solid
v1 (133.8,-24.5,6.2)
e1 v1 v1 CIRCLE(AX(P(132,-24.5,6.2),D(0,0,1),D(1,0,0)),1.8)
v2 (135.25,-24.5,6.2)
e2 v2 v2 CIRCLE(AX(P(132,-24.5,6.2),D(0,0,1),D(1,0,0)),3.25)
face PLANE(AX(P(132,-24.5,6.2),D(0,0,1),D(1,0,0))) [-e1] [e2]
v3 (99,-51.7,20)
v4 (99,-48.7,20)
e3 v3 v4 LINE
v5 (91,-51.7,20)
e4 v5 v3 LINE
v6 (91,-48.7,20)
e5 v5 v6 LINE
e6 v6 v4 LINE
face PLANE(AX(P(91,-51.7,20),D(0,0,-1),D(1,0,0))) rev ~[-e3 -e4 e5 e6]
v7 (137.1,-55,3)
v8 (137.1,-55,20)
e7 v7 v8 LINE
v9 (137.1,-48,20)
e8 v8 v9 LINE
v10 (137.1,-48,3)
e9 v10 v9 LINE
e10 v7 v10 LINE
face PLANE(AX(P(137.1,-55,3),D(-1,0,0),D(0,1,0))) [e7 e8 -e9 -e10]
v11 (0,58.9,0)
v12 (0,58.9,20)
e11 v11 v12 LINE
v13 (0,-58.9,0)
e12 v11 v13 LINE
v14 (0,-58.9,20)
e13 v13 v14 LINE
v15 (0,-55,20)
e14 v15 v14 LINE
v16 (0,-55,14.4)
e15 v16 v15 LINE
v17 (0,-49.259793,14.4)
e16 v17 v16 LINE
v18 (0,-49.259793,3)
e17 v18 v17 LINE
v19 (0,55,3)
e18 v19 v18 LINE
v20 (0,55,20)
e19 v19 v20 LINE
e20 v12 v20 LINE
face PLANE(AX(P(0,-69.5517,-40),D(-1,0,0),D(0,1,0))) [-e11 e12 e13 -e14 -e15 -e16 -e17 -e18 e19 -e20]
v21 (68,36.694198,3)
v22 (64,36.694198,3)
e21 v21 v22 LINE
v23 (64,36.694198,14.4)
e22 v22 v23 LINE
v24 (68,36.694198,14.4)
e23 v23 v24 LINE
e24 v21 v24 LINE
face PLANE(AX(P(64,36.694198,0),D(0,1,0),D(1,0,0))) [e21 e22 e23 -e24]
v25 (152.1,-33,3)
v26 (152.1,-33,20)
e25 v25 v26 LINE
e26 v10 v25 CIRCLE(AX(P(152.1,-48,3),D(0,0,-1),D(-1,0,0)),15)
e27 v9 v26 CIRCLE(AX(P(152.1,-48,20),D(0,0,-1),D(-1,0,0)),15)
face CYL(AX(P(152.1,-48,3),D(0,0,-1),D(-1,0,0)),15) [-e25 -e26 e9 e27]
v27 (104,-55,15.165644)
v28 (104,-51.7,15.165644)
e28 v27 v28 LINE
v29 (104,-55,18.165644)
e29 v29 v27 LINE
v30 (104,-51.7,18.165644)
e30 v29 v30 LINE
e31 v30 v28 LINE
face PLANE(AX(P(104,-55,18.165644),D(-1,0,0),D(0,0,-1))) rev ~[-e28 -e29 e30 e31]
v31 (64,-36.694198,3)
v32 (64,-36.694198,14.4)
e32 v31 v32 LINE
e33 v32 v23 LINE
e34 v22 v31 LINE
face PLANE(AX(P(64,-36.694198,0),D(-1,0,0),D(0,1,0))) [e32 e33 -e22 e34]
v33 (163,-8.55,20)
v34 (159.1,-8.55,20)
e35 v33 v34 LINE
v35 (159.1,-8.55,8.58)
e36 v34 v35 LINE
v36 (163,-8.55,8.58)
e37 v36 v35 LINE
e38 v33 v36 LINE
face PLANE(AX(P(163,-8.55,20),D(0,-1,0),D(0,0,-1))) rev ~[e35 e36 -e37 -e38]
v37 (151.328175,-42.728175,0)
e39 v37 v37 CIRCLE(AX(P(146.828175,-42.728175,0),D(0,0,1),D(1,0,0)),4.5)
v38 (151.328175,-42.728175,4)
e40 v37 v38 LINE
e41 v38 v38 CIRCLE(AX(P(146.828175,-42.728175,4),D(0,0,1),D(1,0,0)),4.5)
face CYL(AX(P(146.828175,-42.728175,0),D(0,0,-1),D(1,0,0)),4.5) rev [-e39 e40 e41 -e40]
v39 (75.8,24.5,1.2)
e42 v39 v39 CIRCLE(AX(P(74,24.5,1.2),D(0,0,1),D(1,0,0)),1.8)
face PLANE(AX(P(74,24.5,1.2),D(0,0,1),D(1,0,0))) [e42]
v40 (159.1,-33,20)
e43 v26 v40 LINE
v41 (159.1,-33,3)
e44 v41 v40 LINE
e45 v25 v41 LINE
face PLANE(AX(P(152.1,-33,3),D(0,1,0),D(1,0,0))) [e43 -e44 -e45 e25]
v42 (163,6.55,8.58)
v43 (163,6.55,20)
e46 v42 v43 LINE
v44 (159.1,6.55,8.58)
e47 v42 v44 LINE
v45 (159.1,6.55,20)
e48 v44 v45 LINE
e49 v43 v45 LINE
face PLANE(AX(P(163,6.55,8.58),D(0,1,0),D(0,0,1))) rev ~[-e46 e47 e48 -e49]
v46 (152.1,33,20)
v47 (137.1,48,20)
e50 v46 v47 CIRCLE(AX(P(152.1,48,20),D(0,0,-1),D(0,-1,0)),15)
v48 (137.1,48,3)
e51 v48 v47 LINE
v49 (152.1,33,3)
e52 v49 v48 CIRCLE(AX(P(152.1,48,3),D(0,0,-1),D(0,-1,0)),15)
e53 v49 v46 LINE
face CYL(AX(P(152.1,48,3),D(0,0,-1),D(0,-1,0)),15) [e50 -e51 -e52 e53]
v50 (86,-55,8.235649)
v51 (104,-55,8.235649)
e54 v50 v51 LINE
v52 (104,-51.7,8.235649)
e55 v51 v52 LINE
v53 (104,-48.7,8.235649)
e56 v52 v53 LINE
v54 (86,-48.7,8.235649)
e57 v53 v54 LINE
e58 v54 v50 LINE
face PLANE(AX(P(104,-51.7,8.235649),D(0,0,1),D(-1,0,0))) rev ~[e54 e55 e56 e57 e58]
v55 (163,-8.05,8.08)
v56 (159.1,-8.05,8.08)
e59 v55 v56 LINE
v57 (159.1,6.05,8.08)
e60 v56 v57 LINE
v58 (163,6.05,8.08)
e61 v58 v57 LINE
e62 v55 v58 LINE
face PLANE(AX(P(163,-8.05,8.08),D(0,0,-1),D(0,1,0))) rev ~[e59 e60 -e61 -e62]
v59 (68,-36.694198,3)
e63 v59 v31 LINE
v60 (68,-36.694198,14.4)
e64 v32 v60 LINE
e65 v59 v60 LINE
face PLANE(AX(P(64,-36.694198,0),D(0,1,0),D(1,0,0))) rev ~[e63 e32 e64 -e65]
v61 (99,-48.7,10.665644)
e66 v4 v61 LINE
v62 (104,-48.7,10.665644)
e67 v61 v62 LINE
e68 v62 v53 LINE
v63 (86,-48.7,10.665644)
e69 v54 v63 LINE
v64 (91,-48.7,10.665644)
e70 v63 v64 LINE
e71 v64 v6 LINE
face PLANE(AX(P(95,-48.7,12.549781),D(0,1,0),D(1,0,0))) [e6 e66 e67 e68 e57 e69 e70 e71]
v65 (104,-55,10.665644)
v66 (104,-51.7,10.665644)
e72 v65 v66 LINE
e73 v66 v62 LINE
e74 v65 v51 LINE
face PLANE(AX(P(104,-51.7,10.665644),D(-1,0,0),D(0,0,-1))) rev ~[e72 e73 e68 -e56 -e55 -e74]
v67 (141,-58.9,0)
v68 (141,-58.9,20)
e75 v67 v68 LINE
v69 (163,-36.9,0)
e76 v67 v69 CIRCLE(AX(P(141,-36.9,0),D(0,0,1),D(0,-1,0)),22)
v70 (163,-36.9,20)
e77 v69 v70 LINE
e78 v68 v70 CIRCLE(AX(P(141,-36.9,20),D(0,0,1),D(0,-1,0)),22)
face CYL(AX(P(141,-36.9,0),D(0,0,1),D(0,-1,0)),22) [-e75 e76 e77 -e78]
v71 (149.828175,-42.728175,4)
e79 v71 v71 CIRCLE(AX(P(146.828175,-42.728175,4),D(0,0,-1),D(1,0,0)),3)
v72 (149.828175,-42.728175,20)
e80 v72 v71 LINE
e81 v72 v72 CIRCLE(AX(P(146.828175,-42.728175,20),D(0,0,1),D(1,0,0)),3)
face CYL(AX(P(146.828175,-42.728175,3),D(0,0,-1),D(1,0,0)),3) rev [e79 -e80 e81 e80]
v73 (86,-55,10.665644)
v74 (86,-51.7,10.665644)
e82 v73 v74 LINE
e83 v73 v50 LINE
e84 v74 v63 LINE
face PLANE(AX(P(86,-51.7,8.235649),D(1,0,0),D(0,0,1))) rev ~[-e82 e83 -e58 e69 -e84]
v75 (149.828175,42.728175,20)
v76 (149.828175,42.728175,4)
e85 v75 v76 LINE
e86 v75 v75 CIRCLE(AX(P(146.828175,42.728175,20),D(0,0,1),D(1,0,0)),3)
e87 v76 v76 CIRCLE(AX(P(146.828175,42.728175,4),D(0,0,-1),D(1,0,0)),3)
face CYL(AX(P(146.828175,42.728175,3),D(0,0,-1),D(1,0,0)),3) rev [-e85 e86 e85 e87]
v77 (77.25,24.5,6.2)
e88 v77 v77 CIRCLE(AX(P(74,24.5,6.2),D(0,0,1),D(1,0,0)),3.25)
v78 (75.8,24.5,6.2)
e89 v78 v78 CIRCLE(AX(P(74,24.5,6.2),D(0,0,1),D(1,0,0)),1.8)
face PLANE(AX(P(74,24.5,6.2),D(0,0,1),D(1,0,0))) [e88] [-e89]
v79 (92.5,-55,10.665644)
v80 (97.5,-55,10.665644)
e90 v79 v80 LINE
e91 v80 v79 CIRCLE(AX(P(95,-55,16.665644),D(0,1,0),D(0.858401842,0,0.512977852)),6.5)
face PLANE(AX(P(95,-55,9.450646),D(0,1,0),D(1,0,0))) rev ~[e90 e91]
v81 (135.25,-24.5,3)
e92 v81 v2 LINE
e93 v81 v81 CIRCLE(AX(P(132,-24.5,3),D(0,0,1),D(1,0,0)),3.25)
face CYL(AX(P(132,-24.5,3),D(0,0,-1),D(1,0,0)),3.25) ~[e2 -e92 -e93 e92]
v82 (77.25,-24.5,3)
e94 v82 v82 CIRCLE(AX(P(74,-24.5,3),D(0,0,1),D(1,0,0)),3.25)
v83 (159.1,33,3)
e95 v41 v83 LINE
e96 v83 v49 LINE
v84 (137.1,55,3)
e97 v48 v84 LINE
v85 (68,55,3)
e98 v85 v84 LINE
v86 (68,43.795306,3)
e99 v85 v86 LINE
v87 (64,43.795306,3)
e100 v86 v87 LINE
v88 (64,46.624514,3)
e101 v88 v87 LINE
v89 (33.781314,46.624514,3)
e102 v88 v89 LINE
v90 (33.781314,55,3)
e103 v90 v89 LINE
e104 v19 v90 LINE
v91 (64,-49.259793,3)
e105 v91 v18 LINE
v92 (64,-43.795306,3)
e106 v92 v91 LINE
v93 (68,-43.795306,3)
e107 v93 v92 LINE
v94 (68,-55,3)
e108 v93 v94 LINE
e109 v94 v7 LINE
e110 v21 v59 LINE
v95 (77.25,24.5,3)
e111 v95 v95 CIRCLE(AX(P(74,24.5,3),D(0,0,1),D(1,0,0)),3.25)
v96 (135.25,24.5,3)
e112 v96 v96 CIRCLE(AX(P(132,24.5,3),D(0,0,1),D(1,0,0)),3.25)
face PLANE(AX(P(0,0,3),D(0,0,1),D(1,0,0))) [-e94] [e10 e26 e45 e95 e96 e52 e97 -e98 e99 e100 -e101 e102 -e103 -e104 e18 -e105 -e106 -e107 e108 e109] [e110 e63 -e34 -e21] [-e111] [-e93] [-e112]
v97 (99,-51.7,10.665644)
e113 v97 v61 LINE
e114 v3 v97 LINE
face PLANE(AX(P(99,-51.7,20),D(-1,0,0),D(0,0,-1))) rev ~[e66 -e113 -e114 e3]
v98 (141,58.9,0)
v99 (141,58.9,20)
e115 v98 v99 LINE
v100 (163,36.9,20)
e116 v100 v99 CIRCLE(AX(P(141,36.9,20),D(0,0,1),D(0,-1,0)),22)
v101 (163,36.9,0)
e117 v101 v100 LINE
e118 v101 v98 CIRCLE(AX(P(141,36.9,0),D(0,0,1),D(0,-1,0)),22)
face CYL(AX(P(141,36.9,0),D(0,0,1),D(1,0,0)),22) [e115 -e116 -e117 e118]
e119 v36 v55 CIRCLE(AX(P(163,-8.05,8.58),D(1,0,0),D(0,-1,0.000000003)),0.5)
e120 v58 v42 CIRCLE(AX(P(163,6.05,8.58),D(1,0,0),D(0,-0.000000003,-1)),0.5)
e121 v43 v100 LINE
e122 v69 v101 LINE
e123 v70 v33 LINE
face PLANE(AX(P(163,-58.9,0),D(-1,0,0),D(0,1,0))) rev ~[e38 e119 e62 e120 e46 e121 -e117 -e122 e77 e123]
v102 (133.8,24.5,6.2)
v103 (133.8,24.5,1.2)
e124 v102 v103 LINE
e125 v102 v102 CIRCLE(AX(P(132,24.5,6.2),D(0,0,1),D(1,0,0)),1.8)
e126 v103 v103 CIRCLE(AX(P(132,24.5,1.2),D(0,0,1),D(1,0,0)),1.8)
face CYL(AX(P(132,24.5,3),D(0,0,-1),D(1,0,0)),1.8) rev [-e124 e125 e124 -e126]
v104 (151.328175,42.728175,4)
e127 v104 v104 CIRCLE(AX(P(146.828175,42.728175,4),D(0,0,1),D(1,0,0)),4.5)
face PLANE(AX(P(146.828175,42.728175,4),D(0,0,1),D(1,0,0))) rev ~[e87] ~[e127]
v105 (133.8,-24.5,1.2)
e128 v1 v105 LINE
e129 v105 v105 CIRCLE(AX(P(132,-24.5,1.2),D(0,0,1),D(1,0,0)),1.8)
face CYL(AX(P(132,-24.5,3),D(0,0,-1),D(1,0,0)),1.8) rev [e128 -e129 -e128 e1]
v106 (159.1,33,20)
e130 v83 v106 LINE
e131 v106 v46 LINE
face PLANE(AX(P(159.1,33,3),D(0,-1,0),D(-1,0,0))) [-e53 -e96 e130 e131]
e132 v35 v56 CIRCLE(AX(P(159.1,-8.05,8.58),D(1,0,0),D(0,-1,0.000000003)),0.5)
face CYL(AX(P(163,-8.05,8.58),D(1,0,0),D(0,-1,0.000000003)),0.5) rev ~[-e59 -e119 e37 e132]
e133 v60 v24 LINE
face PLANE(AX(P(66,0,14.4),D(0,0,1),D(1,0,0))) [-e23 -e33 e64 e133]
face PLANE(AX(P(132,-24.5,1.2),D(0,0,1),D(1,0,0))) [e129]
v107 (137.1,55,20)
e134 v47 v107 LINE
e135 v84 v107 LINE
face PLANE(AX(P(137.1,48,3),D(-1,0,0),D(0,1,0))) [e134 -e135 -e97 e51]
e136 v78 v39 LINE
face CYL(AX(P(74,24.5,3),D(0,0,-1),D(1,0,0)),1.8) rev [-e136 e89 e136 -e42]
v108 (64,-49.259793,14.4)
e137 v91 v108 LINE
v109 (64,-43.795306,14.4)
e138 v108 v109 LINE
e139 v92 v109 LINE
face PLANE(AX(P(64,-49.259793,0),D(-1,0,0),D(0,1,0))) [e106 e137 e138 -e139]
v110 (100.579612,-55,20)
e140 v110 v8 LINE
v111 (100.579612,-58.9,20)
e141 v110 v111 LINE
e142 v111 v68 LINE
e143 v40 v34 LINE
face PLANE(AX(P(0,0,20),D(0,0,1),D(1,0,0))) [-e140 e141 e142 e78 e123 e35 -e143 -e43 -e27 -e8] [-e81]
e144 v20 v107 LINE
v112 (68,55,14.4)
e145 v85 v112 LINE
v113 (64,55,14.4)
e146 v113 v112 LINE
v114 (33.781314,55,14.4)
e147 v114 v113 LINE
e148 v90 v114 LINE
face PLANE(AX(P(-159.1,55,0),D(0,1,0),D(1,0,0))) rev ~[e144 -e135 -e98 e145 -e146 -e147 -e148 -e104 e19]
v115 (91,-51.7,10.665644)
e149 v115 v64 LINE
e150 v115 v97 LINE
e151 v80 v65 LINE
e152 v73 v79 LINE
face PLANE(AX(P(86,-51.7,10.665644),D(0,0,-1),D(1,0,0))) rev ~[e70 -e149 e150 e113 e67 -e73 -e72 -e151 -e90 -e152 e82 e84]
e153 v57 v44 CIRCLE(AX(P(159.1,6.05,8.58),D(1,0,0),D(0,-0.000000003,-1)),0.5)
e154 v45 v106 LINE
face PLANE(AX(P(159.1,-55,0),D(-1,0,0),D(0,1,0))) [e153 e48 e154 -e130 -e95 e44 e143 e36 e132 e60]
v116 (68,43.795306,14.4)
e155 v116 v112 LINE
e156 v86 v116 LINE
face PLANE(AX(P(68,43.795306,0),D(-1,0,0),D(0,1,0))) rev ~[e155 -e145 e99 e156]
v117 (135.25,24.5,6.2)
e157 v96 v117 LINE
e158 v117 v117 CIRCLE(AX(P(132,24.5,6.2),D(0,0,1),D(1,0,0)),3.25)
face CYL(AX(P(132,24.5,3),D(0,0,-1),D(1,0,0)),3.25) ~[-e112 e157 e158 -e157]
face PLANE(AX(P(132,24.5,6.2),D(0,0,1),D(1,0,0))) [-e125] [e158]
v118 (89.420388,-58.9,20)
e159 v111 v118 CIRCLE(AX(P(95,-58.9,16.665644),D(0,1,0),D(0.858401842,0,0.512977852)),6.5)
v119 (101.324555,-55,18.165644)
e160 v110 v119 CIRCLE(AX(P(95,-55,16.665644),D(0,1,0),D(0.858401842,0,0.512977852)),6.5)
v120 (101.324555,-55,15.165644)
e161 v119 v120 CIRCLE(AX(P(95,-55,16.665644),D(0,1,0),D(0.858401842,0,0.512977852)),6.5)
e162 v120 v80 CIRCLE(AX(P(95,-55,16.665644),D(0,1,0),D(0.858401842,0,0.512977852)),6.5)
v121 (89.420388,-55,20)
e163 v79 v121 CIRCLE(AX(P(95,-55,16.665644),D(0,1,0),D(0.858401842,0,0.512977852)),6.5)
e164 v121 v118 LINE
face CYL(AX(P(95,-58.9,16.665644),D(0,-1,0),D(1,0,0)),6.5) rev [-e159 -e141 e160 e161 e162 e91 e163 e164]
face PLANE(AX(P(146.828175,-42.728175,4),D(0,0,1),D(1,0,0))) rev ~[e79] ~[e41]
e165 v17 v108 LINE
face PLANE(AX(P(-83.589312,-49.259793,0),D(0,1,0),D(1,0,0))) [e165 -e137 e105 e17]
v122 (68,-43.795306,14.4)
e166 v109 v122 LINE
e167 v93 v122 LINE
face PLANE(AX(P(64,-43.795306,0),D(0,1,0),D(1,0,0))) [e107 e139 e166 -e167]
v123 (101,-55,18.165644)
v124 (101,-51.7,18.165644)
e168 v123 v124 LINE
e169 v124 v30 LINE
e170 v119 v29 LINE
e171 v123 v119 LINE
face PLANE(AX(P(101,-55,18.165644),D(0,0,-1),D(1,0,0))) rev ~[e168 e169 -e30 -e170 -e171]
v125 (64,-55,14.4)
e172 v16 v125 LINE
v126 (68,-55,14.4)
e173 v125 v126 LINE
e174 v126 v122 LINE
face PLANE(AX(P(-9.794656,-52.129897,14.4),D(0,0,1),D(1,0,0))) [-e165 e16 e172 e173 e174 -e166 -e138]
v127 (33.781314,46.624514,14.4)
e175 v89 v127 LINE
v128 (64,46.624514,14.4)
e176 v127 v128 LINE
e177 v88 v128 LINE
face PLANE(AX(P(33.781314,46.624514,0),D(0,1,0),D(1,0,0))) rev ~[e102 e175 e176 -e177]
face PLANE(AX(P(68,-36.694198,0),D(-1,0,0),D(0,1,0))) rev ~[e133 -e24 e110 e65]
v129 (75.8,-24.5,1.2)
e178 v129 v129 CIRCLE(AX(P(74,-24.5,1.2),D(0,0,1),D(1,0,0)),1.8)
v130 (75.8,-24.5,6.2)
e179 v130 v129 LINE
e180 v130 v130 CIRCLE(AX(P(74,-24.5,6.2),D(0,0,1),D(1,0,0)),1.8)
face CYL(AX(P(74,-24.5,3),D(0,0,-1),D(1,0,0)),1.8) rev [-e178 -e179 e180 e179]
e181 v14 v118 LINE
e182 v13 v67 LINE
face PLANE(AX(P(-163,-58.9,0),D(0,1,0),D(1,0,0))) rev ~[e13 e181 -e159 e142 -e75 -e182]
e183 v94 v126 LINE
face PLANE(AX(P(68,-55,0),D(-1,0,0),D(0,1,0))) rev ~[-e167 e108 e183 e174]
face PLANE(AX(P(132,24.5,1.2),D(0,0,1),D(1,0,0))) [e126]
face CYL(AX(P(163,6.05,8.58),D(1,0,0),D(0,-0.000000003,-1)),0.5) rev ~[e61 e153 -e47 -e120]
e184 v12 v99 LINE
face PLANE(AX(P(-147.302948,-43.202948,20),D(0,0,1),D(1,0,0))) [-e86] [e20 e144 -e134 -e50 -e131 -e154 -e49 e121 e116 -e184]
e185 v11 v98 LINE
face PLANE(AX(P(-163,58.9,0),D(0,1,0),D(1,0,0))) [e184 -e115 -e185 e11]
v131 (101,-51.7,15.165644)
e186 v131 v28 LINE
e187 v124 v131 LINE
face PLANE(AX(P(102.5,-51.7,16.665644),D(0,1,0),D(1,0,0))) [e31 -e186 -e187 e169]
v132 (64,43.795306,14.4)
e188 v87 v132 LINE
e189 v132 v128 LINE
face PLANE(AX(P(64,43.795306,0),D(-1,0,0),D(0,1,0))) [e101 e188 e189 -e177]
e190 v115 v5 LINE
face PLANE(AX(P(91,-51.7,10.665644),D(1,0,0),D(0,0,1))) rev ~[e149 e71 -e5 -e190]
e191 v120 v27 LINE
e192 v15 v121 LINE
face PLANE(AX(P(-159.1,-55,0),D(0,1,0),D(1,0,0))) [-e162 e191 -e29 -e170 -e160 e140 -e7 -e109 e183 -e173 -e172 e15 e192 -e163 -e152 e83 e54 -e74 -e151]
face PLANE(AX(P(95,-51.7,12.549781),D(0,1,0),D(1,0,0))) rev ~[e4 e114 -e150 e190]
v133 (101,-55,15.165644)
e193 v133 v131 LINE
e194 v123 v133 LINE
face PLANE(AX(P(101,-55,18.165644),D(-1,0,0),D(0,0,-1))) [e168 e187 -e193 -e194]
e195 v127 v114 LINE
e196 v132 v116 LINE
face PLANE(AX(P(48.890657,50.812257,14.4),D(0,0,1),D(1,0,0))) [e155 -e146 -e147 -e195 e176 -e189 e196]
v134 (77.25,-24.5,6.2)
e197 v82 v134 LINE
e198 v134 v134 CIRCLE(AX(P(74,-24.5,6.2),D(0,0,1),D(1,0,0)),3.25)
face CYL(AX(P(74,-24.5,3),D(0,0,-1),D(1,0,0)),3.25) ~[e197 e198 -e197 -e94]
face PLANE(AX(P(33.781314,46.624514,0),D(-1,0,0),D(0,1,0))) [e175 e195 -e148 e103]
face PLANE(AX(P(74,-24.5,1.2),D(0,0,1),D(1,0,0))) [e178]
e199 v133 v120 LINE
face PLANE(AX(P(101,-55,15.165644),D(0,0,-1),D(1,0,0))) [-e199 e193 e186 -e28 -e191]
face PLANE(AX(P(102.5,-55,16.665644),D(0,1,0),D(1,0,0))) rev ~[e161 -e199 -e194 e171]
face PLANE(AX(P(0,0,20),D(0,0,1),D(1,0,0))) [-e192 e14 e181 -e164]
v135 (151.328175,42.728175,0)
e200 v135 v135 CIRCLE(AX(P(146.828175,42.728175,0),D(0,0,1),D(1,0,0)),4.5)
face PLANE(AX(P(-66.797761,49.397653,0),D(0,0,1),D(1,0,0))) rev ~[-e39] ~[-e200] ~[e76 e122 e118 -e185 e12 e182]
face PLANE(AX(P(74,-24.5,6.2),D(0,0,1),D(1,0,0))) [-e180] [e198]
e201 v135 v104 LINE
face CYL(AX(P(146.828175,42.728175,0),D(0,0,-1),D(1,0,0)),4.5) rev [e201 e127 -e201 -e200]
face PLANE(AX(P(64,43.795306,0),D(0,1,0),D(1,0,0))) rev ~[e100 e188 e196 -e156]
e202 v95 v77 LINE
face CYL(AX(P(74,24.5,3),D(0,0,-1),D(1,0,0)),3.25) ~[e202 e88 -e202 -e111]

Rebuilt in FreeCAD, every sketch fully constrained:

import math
import FreeCAD as App
import Part
import Sketcher

V = App.Vector


def edges_at(feature, points):
    """Names of the edges that pass closest to the given points."""
    edges = feature.Shape.Edges
    near = lambda p: min(range(len(edges)), key=lambda i: edges[i].distToShape(Part.Vertex(*p))[0])
    return sorted({f"Edge{near(p) + 1}" for p in points})


def add_polygon(sketch, points):
    """Adds a closed chain of lines whose ends are joined by coincident constraints."""
    first, n = sketch.GeometryCount, len(points)
    for a, b in zip(points, points[1:] + points[:1]):
        sketch.addGeometry(Part.LineSegment(App.Vector(*a, 0), App.Vector(*b, 0)), False)
    for i in range(n):
        sketch.addConstraint(Sketcher.Constraint("Coincident", first + i, 2, first + (i + 1) % n, 1))

doc = App.newDocument("Part")
body = doc.addObject("PartDesign::Body", "Body")

sketch1 = body.newObject("Sketcher::SketchObject", "Sketch")
sketch1.AttachmentSupport = (doc.getObject("XY_Plane"), [""])
sketch1.MapMode = "FlatFace"
add_polygon(sketch1, [(-163, 59), (-163, -59), (163, -59), (163, 59)])
add_polygon(sketch1, [(159, -55), (-159, -55), (-159, 55), (159, 55)])
sketch1.addConstraint([
    Sketcher.Constraint("Vertical", 0),
    Sketcher.Constraint("Horizontal", 1),
    Sketcher.Constraint("Vertical", 2),
    Sketcher.Constraint("Horizontal", 3),
    Sketcher.Constraint("Horizontal", 4),
    Sketcher.Constraint("Vertical", 5),
    Sketcher.Constraint("Horizontal", 6),
    Sketcher.Constraint("Vertical", 7),
    Sketcher.Constraint("Symmetric", 0, 2, 2, 2, -1, 1),
    Sketcher.Constraint("Symmetric", 4, 2, 6, 2, -1, 1),
    Sketcher.Constraint("DistanceX", 1, 1, 1, 2, 326.0),
    Sketcher.Constraint("DistanceY", 5, 1, 5, 2, 110.0),
    Sketcher.Constraint("DistanceX", 4, 2, 4, 1, 318.2),
    Sketcher.Constraint("DistanceY", 0, 2, 0, 1, 117.8),
])
pad1 = body.newObject("PartDesign::Pad", "Pad")
pad1.Profile = sketch1
pad1.Length = 20

sketch2 = body.newObject("Sketcher::SketchObject", "Sketch001")
sketch2.AttachmentSupport = (doc.getObject("XY_Plane"), [""])
sketch2.MapMode = "FlatFace"
add_polygon(sketch2, [(-159, 55), (-159, -55), (159, -55), (159, 55)])
sketch2.addConstraint([
    Sketcher.Constraint("Vertical", 0),
    Sketcher.Constraint("Horizontal", 1),
    Sketcher.Constraint("Vertical", 2),
    Sketcher.Constraint("Horizontal", 3),
    Sketcher.Constraint("Symmetric", 0, 2, 2, 2, -1, 1),
    Sketcher.Constraint("DistanceY", 0, 2, 0, 1, 110.0),
    Sketcher.Constraint("DistanceX", 1, 1, 1, 2, 318.2),
])
pad2 = body.newObject("PartDesign::Pad", "Pad001")
pad2.Profile = sketch2
pad2.Length = 3

sketch3 = body.newObject("Sketcher::SketchObject", "Sketch002")
sketch3.AttachmentSupport = (doc.getObject("XY_Plane"), [""])
sketch3.MapMode = "FlatFace"
sketch3.AttachmentOffset = App.Placement(V(0, 0, 3), App.Rotation())
sketch3.addGeometry([
    Part.Circle(V(132, -24.5, 0), V(0, 0, 1), 3.2),
    Part.Circle(V(132, -24.5, 0), V(0, 0, 1), 1.8),
    Part.Circle(V(74, -24.5, 0), V(0, 0, 1), 3.2),
    Part.Circle(V(74, -24.5, 0), V(0, 0, 1), 1.8),
    Part.Circle(V(74, 24.5, 0), V(0, 0, 1), 3.2),
    Part.Circle(V(74, 24.5, 0), V(0, 0, 1), 1.8),
    Part.Circle(V(132, 24.5, 0), V(0, 0, 1), 3.2),
    Part.Circle(V(132, 24.5, 0), V(0, 0, 1), 1.8),
], False)
sketch3.addConstraint([
    Sketcher.Constraint("Coincident", 1, 3, 0, 3),
    Sketcher.Constraint("Coincident", 3, 3, 2, 3),
    Sketcher.Constraint("Coincident", 5, 3, 4, 3),
    Sketcher.Constraint("Coincident", 7, 3, 6, 3),
    Sketcher.Constraint("Equal", 0, 2),
    Sketcher.Constraint("Equal", 1, 3),
    Sketcher.Constraint("Equal", 2, 4),
    Sketcher.Constraint("Equal", 3, 5),
    Sketcher.Constraint("Equal", 4, 6),
    Sketcher.Constraint("Equal", 5, 7),
    Sketcher.Constraint("Symmetric", 2, 3, 4, 3, -1),
    Sketcher.Constraint("Symmetric", 0, 3, 6, 3, -1),
    Sketcher.Constraint("Horizontal", 1, 3, 2, 3),
    Sketcher.Constraint("Diameter", 0, 6.5),
    Sketcher.Constraint("Diameter", 1, 3.6),
    Sketcher.Constraint("DistanceX", -1, 1, 0, 3, 132.0),
    Sketcher.Constraint("DistanceX", -1, 1, 2, 3, 74.0),
    Sketcher.Constraint("DistanceY", 2, 3, 4, 3, 49.0),
])
pad3 = body.newObject("PartDesign::Pad", "Pad002")
pad3.Profile = sketch3
pad3.Length = 3.2
doc.recompute()

fillet = body.newObject("PartDesign::Fillet", "Fillet")
fillet.Base = (pad3, edges_at(pad3, [
    (163, 58.9, 10),
    (163, -58.9, 10),
    (-163, -58.9, 10),
    (-163, 58.9, 10),
    (159.1, 55, 11.5),
    (-159.1, 55, 11.5),
    (-159.1, -55, 11.5),
    (159.1, -55, 11.5),
]))
fillet.Radius = 22

sketch4 = body.newObject("Sketcher::SketchObject", "Sketch003")
sketch4.AttachmentSupport = (doc.getObject("YZ_Plane"), [""])
sketch4.MapMode = "FlatFace"
sketch4.AttachmentOffset = App.Placement(V(0, 0, 163), App.Rotation())
sketch4.addGeometry([
    Part.LineSegment(V(-8.55, 20, 0), V(-8.55, 8.58, 0)),
    Part.ArcOfCircle(Part.Circle(V(-8.05, 8.58, 0), V(0, 0, 1), 0.5), math.radians(180), math.radians(270)),
    Part.LineSegment(V(-8.05, 8.08, 0), V(6.05, 8.08, 0)),
    Part.ArcOfCircle(Part.Circle(V(6.05, 8.58, 0), V(0, 0, 1), 0.5), math.radians(-90), math.radians(0)),
    Part.LineSegment(V(6.55, 8.58, 0), V(6.55, 20, 0)),
    Part.LineSegment(V(6.55, 20, 0), V(-8.55, 20, 0)),
], False)
sketch4.addConstraint([
    Sketcher.Constraint("Tangent", 0, 2, 1, 1),
    Sketcher.Constraint("Tangent", 1, 2, 2, 1),
    Sketcher.Constraint("Tangent", 2, 2, 3, 1),
    Sketcher.Constraint("Tangent", 3, 2, 4, 1),
    Sketcher.Constraint("Coincident", 4, 2, 5, 1),
    Sketcher.Constraint("Coincident", 5, 2, 0, 1),
    Sketcher.Constraint("Vertical", 0),
    Sketcher.Constraint("Horizontal", 2),
    Sketcher.Constraint("Vertical", 4),
    Sketcher.Constraint("Horizontal", 5),
    Sketcher.Constraint("Equal", 1, 3),
    Sketcher.Constraint("Radius", 1, 0.5),
    Sketcher.Constraint("DistanceX", 2, 1, 2, 2, 14.1),
    Sketcher.Constraint("DistanceY", -1, 1, 4, 2, 20.0),
    Sketcher.Constraint("DistanceY", 0, 2, 0, 1, 11.42),
    Sketcher.Constraint("DistanceX", 1, 3, -1, 1, 8.05),
])
pocket1 = body.newObject("PartDesign::Pocket", "Pocket")
pocket1.Profile = sketch4
pocket1.Length = 3.9

sketch5 = body.newObject("Sketcher::SketchObject", "Sketch004")
sketch5.AttachmentSupport = (doc.getObject("XY_Plane"), [""])
sketch5.MapMode = "FlatFace"
sketch5.AttachmentOffset = App.Placement(V(0, 0, 1.2), App.Rotation())
sketch5.addGeometry([
    Part.Circle(V(132, -24.5, 0), V(0, 0, 1), 1.8),
    Part.Circle(V(132, 24.5, 0), V(0, 0, 1), 1.8),
    Part.Circle(V(74, 24.5, 0), V(0, 0, 1), 1.8),
    Part.Circle(V(74, -24.5, 0), V(0, 0, 1), 1.8),
], False)
sketch5.addConstraint([
    Sketcher.Constraint("Equal", 0, 1),
    Sketcher.Constraint("Equal", 1, 2),
    Sketcher.Constraint("Equal", 2, 3),
    Sketcher.Constraint("Symmetric", 0, 3, 1, 3, -1),
    Sketcher.Constraint("Symmetric", 2, 3, 3, 3, -1),
    Sketcher.Constraint("Horizontal", 1, 3, 2, 3),
    Sketcher.Constraint("Diameter", 0, 3.6),
    Sketcher.Constraint("DistanceX", -1, 1, 0, 3, 132.0),
    Sketcher.Constraint("DistanceX", -1, 1, 2, 3, 74.0),
    Sketcher.Constraint("DistanceY", 0, 3, 1, 3, 49.0),
])
pocket2 = body.newObject("PartDesign::Pocket", "Pocket001")
pocket2.Profile = sketch5
pocket2.Length = 1.8
pocket2.Reversed = True

sketch6 = body.newObject("Sketcher::SketchObject", "Sketch005")
sketch6.AttachmentSupport = (doc.getObject("XY_Plane"), [""])
sketch6.MapMode = "FlatFace"
add_polygon(sketch6, [(-99, 43.8), (-34.6, 43.8), (-34.6, 55), (-103, 55), (-103, -43.8), (-99, -43.8)])
add_polygon(sketch6, [(33.8, 55), (33.8, 46.6), (64, 46.6), (64, 43.8), (68, 43.8), (68, 55), (64, 55)])
add_polygon(sketch6, [(64, 36.7), (64, -36.7), (68, -36.7), (68, 36.7)])
add_polygon(sketch6, [(-83.6, -49.3), (-83.6, -55), (64, -55), (68, -55), (68, -43.8), (64, -43.8), (64, -49.3)])
sketch6.addConstraint([
    Sketcher.Constraint("Horizontal", 0),
    Sketcher.Constraint("Vertical", 1),
    Sketcher.Constraint("Horizontal", 2),
    Sketcher.Constraint("Vertical", 3),
    Sketcher.Constraint("Horizontal", 4),
    Sketcher.Constraint("Vertical", 5),
    Sketcher.Constraint("Vertical", 6),
    Sketcher.Constraint("Horizontal", 7),
    Sketcher.Constraint("Vertical", 8),
    Sketcher.Constraint("Horizontal", 9),
    Sketcher.Constraint("Vertical", 10),
    Sketcher.Constraint("Horizontal", 11),
    Sketcher.Constraint("Horizontal", 12),
    Sketcher.Constraint("Vertical", 13),
    Sketcher.Constraint("Horizontal", 14),
    Sketcher.Constraint("Vertical", 15),
    Sketcher.Constraint("Horizontal", 16),
    Sketcher.Constraint("Vertical", 17),
    Sketcher.Constraint("Horizontal", 18),
    Sketcher.Constraint("Horizontal", 19),
    Sketcher.Constraint("Vertical", 20),
    Sketcher.Constraint("Horizontal", 21),
    Sketcher.Constraint("Vertical", 22),
    Sketcher.Constraint("Horizontal", 23),
    Sketcher.Constraint("Symmetric", 11, 2, 18, 2, -1),
    Sketcher.Constraint("Symmetric", 9, 2, 20, 2, -1),
    Sketcher.Constraint("Horizontal", 5, 2, 8, 2),
    Sketcher.Constraint("Horizontal", 2, 2, 10, 2),
    Sketcher.Constraint("Horizontal", 4, 2, 20, 2),
    Sketcher.Constraint("Vertical", 8, 2, 11, 2),
    Sketcher.Constraint("Vertical", 11, 2, 13, 2),
    Sketcher.Constraint("Vertical", 10, 2, 14, 2),
    Sketcher.Constraint("Vertical", 18, 2, 21, 2),
    Sketcher.Constraint("Equal", 4, 9),
    Sketcher.Constraint("DistanceX", 4, 1, 4, 2, 4.0),
    Sketcher.Constraint("DistanceY", -1, 1, 1, 2, 55.0),
    Sketcher.Constraint("DistanceX", 2, 2, -1, 1, 103.0),
    Sketcher.Constraint("DistanceX", -1, 1, 7, 2, 64.0),
    Sketcher.Constraint("DistanceX", 0, 1, 0, 2, 64.404479),
    Sketcher.Constraint("DistanceX", 18, 1, 18, 2, 147.589312),
    Sketcher.Constraint("DistanceY", 23, 2, 5, 2, 93.055099),
    Sketcher.Constraint("DistanceX", 7, 1, 7, 2, 30.218686),
    Sketcher.Constraint("DistanceY", 1, 1, 1, 2, 11.204694),
    Sketcher.Constraint("DistanceY", 6, 2, 6, 1, 8.375486),
    Sketcher.Constraint("DistanceY", 13, 2, 13, 1, 73.388396),
    Sketcher.Constraint("DistanceY", 13, 2, 7, 2, 83.318712),
])
pad4 = body.newObject("PartDesign::Pad", "Pad003")
pad4.Profile = sketch6
pad4.Length = 14.4

sketch7 = body.newObject("Sketcher::SketchObject", "Sketch006")
sketch7.AttachmentSupport = (doc.getObject("XZ_Plane"), [""])
sketch7.MapMode = "FlatFace"
sketch7.AttachmentOffset = App.Placement(V(0, 0, 58.9), App.Rotation())
sketch7.addGeometry([
    Part.Circle(V(95, 17, 0), V(0, 0, 1), 6),
    Part.Circle(V(-95, 17, 0), V(0, 0, 1), 6),
], False)
sketch7.addConstraint([
    Sketcher.Constraint("Equal", 0, 1),
    Sketcher.Constraint("Symmetric", 0, 3, 1, 3, -2),
    Sketcher.Constraint("Diameter", 0, 13.0),
    Sketcher.Constraint("DistanceX", -1, 1, 0, 3, 95.0),
    Sketcher.Constraint("DistanceY", -1, 1, 0, 3, 16.665644),
])
pocket3 = body.newObject("PartDesign::Pocket", "Pocket002")
pocket3.Profile = sketch7
pocket3.Length = 3.9

sketch8 = body.newObject("Sketcher::SketchObject", "Sketch007")
sketch8.AttachmentSupport = (doc.getObject("XZ_Plane"), [""])
sketch8.MapMode = "FlatFace"
sketch8.AttachmentOffset = App.Placement(V(0, 0, 55), App.Rotation())
add_polygon(sketch8, [(-101, 14.9), (-104, 14.9), (-104, 17.9), (-101, 17.9)])
add_polygon(sketch8, [(-86, 8), (-104, 8), (-104, 10.4), (-86, 10.5)])
add_polygon(sketch8, [(86, 8.2), (86, 10.7), (104, 10.7), (104, 8.2)])
add_polygon(sketch8, [(101, 15.2), (101, 18.2), (104, 18.2), (104, 15.2)])
sketch8.addConstraint([
    Sketcher.Constraint("Vertical", 8),
    Sketcher.Constraint("Horizontal", 9),
    Sketcher.Constraint("Vertical", 10),
    Sketcher.Constraint("Horizontal", 11),
    Sketcher.Constraint("Vertical", 12),
    Sketcher.Constraint("Horizontal", 13),
    Sketcher.Constraint("Vertical", 14),
    Sketcher.Constraint("Horizontal", 15),
    Sketcher.Constraint("Perpendicular", 0, 1),
    Sketcher.Constraint("Perpendicular", 1, 2),
    Sketcher.Constraint("Perpendicular", 2, 3),
    Sketcher.Constraint("Perpendicular", 3, 4),
    Sketcher.Constraint("Perpendicular", 4, 5),
    Sketcher.Constraint("Perpendicular", 5, 6),
    Sketcher.Constraint("Perpendicular", 6, 7),
    Sketcher.Constraint("Vertical", 10, 2, 13, 2),
    Sketcher.Constraint("Equal", 15, 12),
    Sketcher.Constraint("Equal", 0, 1),
    Sketcher.Constraint("DistanceX", 9, 1, 9, 2, 18.0),
    Sketcher.Constraint("DistanceX", 13, 1, 13, 2, 3.0),
    Sketcher.Constraint("Distance", 0, 3.0),
    Sketcher.Constraint("Distance", 4, 18.0),
    Sketcher.Constraint("DistanceX", -1, 1, 8, 2, 86.0),
    Sketcher.Constraint("DistanceY", 9, 2, 12, 2, 7.5),
    Sketcher.Constraint("DistanceY", 5, 2, 6, 2, 0.040598),
    Sketcher.Constraint("DistanceY", 8, 1, 8, 2, 2.429995),
    Sketcher.Constraint("DistanceX", 0, 2, -1, 1, 104.033941),
    Sketcher.Constraint("DistanceY", -1, 1, 1, 2, 17.931029),
    Sketcher.Constraint("DistanceX", 4, 2, -1, 1, 104.018311),
    Sketcher.Constraint("DistanceY", -1, 1, 4, 2, 8.001059),
    Sketcher.Constraint("DistanceY", -1, 1, 10, 2, 8.235649),
    Sketcher.Constraint("DistanceY", 4, 2, 5, 2, 2.429989),
])
pad5 = body.newObject("PartDesign::Pad", "Pad004")
pad5.Profile = sketch8
pad5.Length = 3.3
pad5.Reversed = True

sketch9 = body.newObject("Sketcher::SketchObject", "Sketch008")
sketch9.AttachmentSupport = (doc.getObject("XZ_Plane"), [""])
sketch9.MapMode = "FlatFace"
sketch9.AttachmentOffset = App.Placement(V(0, 0, 51.7), App.Rotation())
add_polygon(sketch9, [(86, 8.2), (86, 10.7), (91, 10.7), (91, 20), (99, 20), (99, 10.7), (104, 10.7), (104, 8.2)])
add_polygon(sketch9, [(-104, 10.4), (-99, 10.4), (-99, 19.8), (-91, 19.8), (-91, 10.5), (-86, 10.5), (-86, 8), (-104, 8)])
sketch9.addConstraint([
    Sketcher.Constraint("Vertical", 0),
    Sketcher.Constraint("Horizontal", 1),
    Sketcher.Constraint("Vertical", 2),
    Sketcher.Constraint("Horizontal", 3),
    Sketcher.Constraint("Vertical", 4),
    Sketcher.Constraint("Horizontal", 5),
    Sketcher.Constraint("Vertical", 6),
    Sketcher.Constraint("Horizontal", 7),
    Sketcher.Constraint("Perpendicular", 8, 9),
    Sketcher.Constraint("Perpendicular", 9, 10),
    Sketcher.Constraint("Perpendicular", 10, 11),
    Sketcher.Constraint("Perpendicular", 11, 12),
    Sketcher.Constraint("Perpendicular", 12, 13),
    Sketcher.Constraint("Perpendicular", 13, 14),
    Sketcher.Constraint("Perpendicular", 14, 15),
    Sketcher.Constraint("Horizontal", 1, 2, 4, 2),
    Sketcher.Constraint("Equal", 1, 5),
    Sketcher.Constraint("Equal", 9, 11),
    Sketcher.Constraint("Equal", 8, 12),
    Sketcher.Constraint("DistanceX", 1, 1, 1, 2, 5.0),
    Sketcher.Constraint("DistanceX", 3, 1, 3, 2, 8.0),
    Sketcher.Constraint("Distance", 8, 5.0),
    Sketcher.Constraint("Distance", 10, 8.0),
    Sketcher.Constraint("DistanceX", -1, 1, 0, 2, 86.0),
    Sketcher.Constraint("DistanceY", -1, 1, 2, 2, 20.0),
    Sketcher.Constraint("DistanceY", 13, 2, 9, 2, 11.735),
    Sketcher.Constraint("DistanceY", -1, 1, 10, 2, 19.794701),
    Sketcher.Constraint("DistanceX", 9, 2, 13, 2, 13.026501),
    Sketcher.Constraint("DistanceY", 0, 1, 0, 2, 2.429995),
    Sketcher.Constraint("DistanceY", 2, 1, 2, 2, 9.334356),
    Sketcher.Constraint("DistanceY", -1, 1, 11, 2, 10.460369),
    Sketcher.Constraint("DistanceX", 14, 2, -1, 1, 104.018311),
])
pad6 = body.newObject("PartDesign::Pad", "Pad005")
pad6.Profile = sketch9
pad6.Length = 3
pad6.Reversed = True

sketch10 = body.newObject("Sketcher::SketchObject", "Sketch009")
sketch10.AttachmentSupport = (doc.getObject("XY_Plane"), [""])
sketch10.MapMode = "FlatFace"
sketch10.AttachmentOffset = App.Placement(V(0, 0, 3), App.Rotation())
sketch10.addGeometry([
    Part.LineSegment(V(-137.1, -55, 0), V(-137.1, -48, 0)),
    Part.ArcOfCircle(Part.Circle(V(-152.1, -48, 0), V(0, 0, 1), 15), math.radians(0), math.radians(90)),
    Part.LineSegment(V(-152.1, -33, 0), V(-159.1, -33, 0)),
    Part.ArcOfCircle(Part.Circle(V(-137.1, -33, 0), V(0, 0, 1), 22), math.radians(180), math.radians(270)),
    Part.Circle(V(-146.8, -42.7, 0), V(0, 0, 1), 3),
    Part.ArcOfCircle(Part.Circle(V(-152.1, 48, 0), V(0, 0, 1), 15), math.radians(-90), math.radians(0)),
    Part.LineSegment(V(-137.1, 48, 0), V(-137.1, 55, 0)),
    Part.ArcOfCircle(Part.Circle(V(-137.1, 33, 0), V(0, 0, 1), 22), math.radians(90), math.radians(180)),
    Part.LineSegment(V(-159.1, 33, 0), V(-152.1, 33, 0)),
    Part.Circle(V(-146.8, 42.7, 0), V(0, 0, 1), 3),
    Part.ArcOfCircle(Part.Circle(V(152.1, 48, 0), V(0, 0, 1), 15), math.radians(180), math.radians(270)),
    Part.LineSegment(V(152.1, 33, 0), V(159.1, 33, 0)),
    Part.ArcOfCircle(Part.Circle(V(137.1, 33, 0), V(0, 0, 1), 22), math.radians(0), math.radians(90)),
    Part.LineSegment(V(137.1, 55, 0), V(137.1, 48, 0)),
    Part.Circle(V(146.8, 42.7, 0), V(0, 0, 1), 3),
    Part.ArcOfCircle(Part.Circle(V(152.1, -48, 0), V(0, 0, 1), 15), math.radians(90), math.radians(180)),
    Part.LineSegment(V(137.1, -48, 0), V(137.1, -55, 0)),
    Part.ArcOfCircle(Part.Circle(V(137.1, -33, 0), V(0, 0, 1), 22), math.radians(-90), math.radians(0)),
    Part.LineSegment(V(159.1, -33, 0), V(152.1, -33, 0)),
    Part.Circle(V(146.8, -42.7, 0), V(0, 0, 1), 3),
], False)
sketch10.addConstraint([
    Sketcher.Constraint("Tangent", 0, 2, 1, 1),
    Sketcher.Constraint("Tangent", 1, 2, 2, 1),
    Sketcher.Constraint("Coincident", 2, 2, 3, 1),
    Sketcher.Constraint("Coincident", 3, 2, 0, 1),
    Sketcher.Constraint("Tangent", 5, 2, 6, 1),
    Sketcher.Constraint("Coincident", 6, 2, 7, 1),
    Sketcher.Constraint("Coincident", 7, 2, 8, 1),
    Sketcher.Constraint("Tangent", 8, 2, 5, 1),
    Sketcher.Constraint("Tangent", 10, 2, 11, 1),
    Sketcher.Constraint("Coincident", 11, 2, 12, 1),
    Sketcher.Constraint("Coincident", 12, 2, 13, 1),
    Sketcher.Constraint("Tangent", 13, 2, 10, 1),
    Sketcher.Constraint("Tangent", 15, 2, 16, 1),
    Sketcher.Constraint("Coincident", 16, 2, 17, 1),
    Sketcher.Constraint("Coincident", 17, 2, 18, 1),
    Sketcher.Constraint("Tangent", 18, 2, 15, 1),
    Sketcher.Constraint("Vertical", 0),
    Sketcher.Constraint("Horizontal", 2),
    Sketcher.Constraint("Vertical", 6),
    Sketcher.Constraint("Horizontal", 8),
    Sketcher.Constraint("Horizontal", 11),
    Sketcher.Constraint("Vertical", 13),
    Sketcher.Constraint("Vertical", 16),
    Sketcher.Constraint("Horizontal", 18),
    Sketcher.Constraint("Equal", 1, 5),
    Sketcher.Constraint("Equal", 3, 7),
    Sketcher.Constraint("Equal", 4, 9),
    Sketcher.Constraint("Equal", 5, 10),
    Sketcher.Constraint("Equal", 7, 12),
    Sketcher.Constraint("Equal", 9, 14),
    Sketcher.Constraint("Equal", 10, 15),
    Sketcher.Constraint("Equal", 12, 17),
    Sketcher.Constraint("Equal", 14, 19),
    Sketcher.Constraint("Symmetric", 1, 3, 10, 3, -1, 1),
    Sketcher.Constraint("Symmetric", 3, 3, 12, 3, -1, 1),
    Sketcher.Constraint("Symmetric", 4, 3, 14, 3, -1, 1),
    Sketcher.Constraint("Symmetric", 5, 3, 15, 3, -1, 1),
    Sketcher.Constraint("Symmetric", 7, 3, 17, 3, -1, 1),
    Sketcher.Constraint("Symmetric", 9, 3, 19, 3, -1, 1),
    Sketcher.Constraint("Symmetric", 5, 3, 10, 3, -2),
    Sketcher.Constraint("Symmetric", 7, 3, 12, 3, -2),
    Sketcher.Constraint("Symmetric", 9, 3, 14, 3, -2),
    Sketcher.Constraint("Horizontal", 17, 3, 1, 2),
    Sketcher.Constraint("Vertical", 7, 3, 0, 2),
    Sketcher.Constraint("Diameter", 4, 6.0),
    Sketcher.Constraint("Radius", 1, 15.0),
    Sketcher.Constraint("Radius", 3, 22.0),
    Sketcher.Constraint("DistanceY", 1, 3, -1, 1, 48.0),
    Sketcher.Constraint("DistanceX", 1, 3, -1, 1, 152.1),
    Sketcher.Constraint("DistanceY", 4, 3, 9, 3, 85.456349),
    Sketcher.Constraint("DistanceX", 9, 3, 14, 3, 293.656349),
])
pad7 = body.newObject("PartDesign::Pad", "Pad006")
pad7.Profile = sketch10
pad7.Length = 17

sketch11 = body.newObject("Sketcher::SketchObject", "Sketch010")
sketch11.AttachmentSupport = (doc.getObject("XY_Plane"), [""])
sketch11.MapMode = "FlatFace"
sketch11.addGeometry([
    Part.Circle(V(146.8, 42.7, 0), V(0, 0, 1), 3),
    Part.Circle(V(146.8, -42.7, 0), V(0, 0, 1), 3),
    Part.Circle(V(-146.8, -42.7, 0), V(0, 0, 1), 3),
    Part.Circle(V(-146.8, 42.7, 0), V(0, 0, 1), 3),
], False)
sketch11.addConstraint([
    Sketcher.Constraint("Equal", 0, 1),
    Sketcher.Constraint("Equal", 1, 2),
    Sketcher.Constraint("Equal", 2, 3),
    Sketcher.Constraint("Symmetric", 0, 3, 2, 3, -1, 1),
    Sketcher.Constraint("Symmetric", 1, 3, 3, 3, -1, 1),
    Sketcher.Constraint("Symmetric", 1, 3, 2, 3, -2),
    Sketcher.Constraint("Diameter", 0, 6.0),
    Sketcher.Constraint("DistanceY", 1, 3, 0, 3, 85.456349),
    Sketcher.Constraint("DistanceX", 2, 3, 1, 3, 293.656349),
])
pocket4 = body.newObject("PartDesign::Pocket", "Pocket003")
pocket4.Profile = sketch11
pocket4.Length = 6
pocket4.Reversed = True

sketch12 = body.newObject("Sketcher::SketchObject", "Sketch011")
sketch12.AttachmentSupport = (doc.getObject("XY_Plane"), [""])
sketch12.MapMode = "FlatFace"
sketch12.addGeometry([
    Part.Circle(V(-146.8, -42.7, 0), V(0, 0, 1), 4.5),
    Part.Circle(V(-146.8, 42.7, 0), V(0, 0, 1), 4.5),
    Part.Circle(V(146.8, 42.7, 0), V(0, 0, 1), 4.5),
    Part.Circle(V(146.8, -42.7, 0), V(0, 0, 1), 4.5),
], False)
sketch12.addConstraint([
    Sketcher.Constraint("Equal", 0, 1),
    Sketcher.Constraint("Equal", 1, 2),
    Sketcher.Constraint("Equal", 2, 3),
    Sketcher.Constraint("Symmetric", 0, 3, 2, 3, -1, 1),
    Sketcher.Constraint("Symmetric", 1, 3, 3, 3, -1, 1),
    Sketcher.Constraint("Symmetric", 1, 3, 2, 3, -2),
    Sketcher.Constraint("Diameter", 0, 9.0),
    Sketcher.Constraint("DistanceY", 0, 3, 1, 3, 85.456349),
    Sketcher.Constraint("DistanceX", 1, 3, 2, 3, 293.656349),
])
pocket5 = body.newObject("PartDesign::Pocket", "Pocket004")
pocket5.Profile = sketch12
pocket5.Length = 4
pocket5.Reversed = True

sketch13 = body.newObject("Sketcher::SketchObject", "Sketch012")
sketch13.AttachmentSupport = (doc.getObject("XY_Plane"), [""])
sketch13.MapMode = "FlatFace"
add_polygon(sketch13, [(-180, 63), (-180, -70), (0, -70), (0, 63)])
sketch13.addConstraint([
    Sketcher.Constraint("Vertical", 0),
    Sketcher.Constraint("Horizontal", 1),
    Sketcher.Constraint("Vertical", 2),
    Sketcher.Constraint("Horizontal", 3),
    Sketcher.Constraint("PointOnObject", 1, 2, -2),
    Sketcher.Constraint("DistanceY", 0, 2, -1, 1, 69.5517),
    Sketcher.Constraint("DistanceX", 1, 1, 1, 2, 179.941396),
    Sketcher.Constraint("DistanceY", 0, 2, 0, 1, 132.266114),
])
pocket6 = body.newObject("PartDesign::Pocket", "Pocket005")
pocket6.Profile = sketch13
pocket6.Type = "ThroughAll"
pocket6.Midplane = True

doc.recompute()
